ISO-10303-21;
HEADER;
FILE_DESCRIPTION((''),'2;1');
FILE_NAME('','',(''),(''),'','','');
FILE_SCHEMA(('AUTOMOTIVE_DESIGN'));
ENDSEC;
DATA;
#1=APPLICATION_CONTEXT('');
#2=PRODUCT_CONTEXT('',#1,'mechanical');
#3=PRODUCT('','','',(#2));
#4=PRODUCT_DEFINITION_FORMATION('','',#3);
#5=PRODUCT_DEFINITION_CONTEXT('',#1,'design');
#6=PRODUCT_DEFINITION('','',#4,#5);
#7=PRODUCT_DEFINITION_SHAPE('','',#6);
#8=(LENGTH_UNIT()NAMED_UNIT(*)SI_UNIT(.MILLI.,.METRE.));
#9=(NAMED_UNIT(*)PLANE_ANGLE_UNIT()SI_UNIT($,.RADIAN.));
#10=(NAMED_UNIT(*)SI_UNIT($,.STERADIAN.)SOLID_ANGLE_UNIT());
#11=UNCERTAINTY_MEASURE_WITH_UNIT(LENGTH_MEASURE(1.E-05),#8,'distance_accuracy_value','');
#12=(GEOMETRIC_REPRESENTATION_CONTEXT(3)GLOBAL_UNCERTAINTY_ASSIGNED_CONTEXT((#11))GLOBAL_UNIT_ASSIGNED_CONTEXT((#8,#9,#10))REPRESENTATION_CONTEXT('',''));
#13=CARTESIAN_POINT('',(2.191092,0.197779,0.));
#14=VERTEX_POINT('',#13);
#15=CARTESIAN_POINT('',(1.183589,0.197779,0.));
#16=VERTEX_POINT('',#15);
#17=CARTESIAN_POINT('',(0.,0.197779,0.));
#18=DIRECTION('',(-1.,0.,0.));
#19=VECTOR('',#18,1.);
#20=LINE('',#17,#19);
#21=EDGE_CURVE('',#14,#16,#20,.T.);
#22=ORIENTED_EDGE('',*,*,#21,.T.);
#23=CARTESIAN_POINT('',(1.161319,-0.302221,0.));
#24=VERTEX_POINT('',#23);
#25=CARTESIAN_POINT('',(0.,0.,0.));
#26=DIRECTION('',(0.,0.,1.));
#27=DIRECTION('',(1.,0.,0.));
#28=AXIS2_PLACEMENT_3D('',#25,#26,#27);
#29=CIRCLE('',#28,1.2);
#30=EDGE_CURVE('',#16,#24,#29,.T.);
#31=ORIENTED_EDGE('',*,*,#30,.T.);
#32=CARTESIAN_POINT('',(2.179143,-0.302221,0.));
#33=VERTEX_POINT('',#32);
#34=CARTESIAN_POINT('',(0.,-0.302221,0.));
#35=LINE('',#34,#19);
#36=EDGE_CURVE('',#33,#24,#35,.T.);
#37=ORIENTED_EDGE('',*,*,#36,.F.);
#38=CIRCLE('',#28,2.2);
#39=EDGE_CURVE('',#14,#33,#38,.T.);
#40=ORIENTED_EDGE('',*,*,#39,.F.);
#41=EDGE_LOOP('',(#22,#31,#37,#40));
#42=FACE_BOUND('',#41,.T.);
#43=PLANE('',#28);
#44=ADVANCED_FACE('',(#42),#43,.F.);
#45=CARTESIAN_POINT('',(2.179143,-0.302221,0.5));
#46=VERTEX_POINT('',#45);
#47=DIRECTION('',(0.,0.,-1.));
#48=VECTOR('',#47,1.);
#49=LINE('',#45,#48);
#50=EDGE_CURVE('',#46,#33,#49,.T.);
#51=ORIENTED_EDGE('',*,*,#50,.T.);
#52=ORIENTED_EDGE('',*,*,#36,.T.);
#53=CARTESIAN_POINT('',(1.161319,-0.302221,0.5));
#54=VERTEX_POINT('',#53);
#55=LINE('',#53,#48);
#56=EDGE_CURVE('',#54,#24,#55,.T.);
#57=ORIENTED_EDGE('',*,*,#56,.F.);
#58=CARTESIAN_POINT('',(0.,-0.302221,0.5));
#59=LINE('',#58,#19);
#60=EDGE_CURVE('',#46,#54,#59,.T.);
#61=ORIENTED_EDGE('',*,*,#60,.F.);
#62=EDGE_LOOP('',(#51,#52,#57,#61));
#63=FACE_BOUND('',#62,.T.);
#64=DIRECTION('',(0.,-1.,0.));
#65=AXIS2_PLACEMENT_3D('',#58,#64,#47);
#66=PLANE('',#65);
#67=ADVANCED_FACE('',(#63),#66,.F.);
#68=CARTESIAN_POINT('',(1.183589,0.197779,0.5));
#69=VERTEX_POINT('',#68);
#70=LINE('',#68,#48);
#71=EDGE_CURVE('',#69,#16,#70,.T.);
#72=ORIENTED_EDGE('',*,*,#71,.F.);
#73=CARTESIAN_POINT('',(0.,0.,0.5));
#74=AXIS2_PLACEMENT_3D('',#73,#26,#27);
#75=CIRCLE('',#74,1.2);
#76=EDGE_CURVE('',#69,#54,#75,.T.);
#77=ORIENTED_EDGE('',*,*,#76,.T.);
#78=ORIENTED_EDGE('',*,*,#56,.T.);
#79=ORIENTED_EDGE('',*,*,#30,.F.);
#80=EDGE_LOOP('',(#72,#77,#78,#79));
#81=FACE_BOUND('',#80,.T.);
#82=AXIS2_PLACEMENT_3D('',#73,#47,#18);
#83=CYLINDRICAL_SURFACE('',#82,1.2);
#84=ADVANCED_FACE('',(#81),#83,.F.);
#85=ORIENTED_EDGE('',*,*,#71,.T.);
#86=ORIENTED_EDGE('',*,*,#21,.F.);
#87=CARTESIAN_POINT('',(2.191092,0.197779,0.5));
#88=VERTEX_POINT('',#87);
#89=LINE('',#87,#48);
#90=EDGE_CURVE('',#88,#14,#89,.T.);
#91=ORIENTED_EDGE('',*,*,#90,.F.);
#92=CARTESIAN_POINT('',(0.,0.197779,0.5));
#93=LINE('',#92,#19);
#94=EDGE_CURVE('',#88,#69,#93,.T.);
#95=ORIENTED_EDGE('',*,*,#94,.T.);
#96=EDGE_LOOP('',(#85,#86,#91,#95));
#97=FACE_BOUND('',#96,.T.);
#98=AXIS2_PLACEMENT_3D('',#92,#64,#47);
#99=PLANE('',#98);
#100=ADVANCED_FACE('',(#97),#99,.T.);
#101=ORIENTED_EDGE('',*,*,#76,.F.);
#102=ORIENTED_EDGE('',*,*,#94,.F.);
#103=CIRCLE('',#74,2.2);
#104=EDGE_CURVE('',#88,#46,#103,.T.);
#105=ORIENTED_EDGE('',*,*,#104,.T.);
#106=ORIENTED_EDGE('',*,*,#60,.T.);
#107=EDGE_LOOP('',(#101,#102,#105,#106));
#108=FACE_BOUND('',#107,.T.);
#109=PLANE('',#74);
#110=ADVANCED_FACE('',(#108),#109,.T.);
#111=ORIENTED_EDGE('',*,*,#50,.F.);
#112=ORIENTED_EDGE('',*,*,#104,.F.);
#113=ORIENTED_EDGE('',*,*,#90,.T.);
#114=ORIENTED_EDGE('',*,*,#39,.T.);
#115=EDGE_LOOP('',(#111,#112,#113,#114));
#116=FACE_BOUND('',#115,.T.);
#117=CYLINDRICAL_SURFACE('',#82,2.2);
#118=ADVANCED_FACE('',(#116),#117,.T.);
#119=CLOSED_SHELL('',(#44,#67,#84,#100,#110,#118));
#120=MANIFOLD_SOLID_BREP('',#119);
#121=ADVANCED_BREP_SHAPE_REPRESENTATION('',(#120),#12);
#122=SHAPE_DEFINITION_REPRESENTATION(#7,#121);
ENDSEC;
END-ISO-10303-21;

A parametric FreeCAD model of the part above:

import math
import FreeCAD as App
import Part
import Sketcher

V = App.Vector
Q = App.Units.Quantity

doc = App.newDocument("Part")
body = doc.addObject("PartDesign::Body", "Body")

# Sketch on XY plane
sketch1 = body.newObject("Sketcher::SketchObject", "Sketch")
sketch1.AttachmentSupport = (doc.getObject("XY_Plane"), [""])
sketch1.MapMode = "FlatFace"
sketch1.addGeometry([
    Part.ArcOfCircle(Part.Circle(V(0, 0, 0), V(0, 0, 1), 2.2), math.radians(5), math.radians(352)),
    Part.LineSegment(V(2.2, -0.3, 0), V(1.2, -0.3, 0)),
    Part.ArcOfCircle(Part.Circle(V(0, 0, 0), V(0, 0, 1), 1.2), math.radians(9), math.radians(345)),
    Part.LineSegment(V(1.2, 0.2, 0), V(2.2, 0.2, 0)),
], False)
sketch1.addConstraint([
    Sketcher.Constraint("Coincident", 0, 2, 1, 1),
    Sketcher.Constraint("Coincident", 1, 2, 2, 2),
    Sketcher.Constraint("Coincident", 2, 1, 3, 1),
    Sketcher.Constraint("Coincident", 3, 2, 0, 1),
    Sketcher.Constraint("Horizontal", 1),
    Sketcher.Constraint("Horizontal", 3),
    Sketcher.Constraint("Coincident", 0, 3, -1, 1),
    Sketcher.Constraint("Coincident", 2, 3, -1, 1),
    Sketcher.Constraint("Radius", 0, Q("2.2 mm")),
    Sketcher.Constraint("Radius", 2, Q("1.2 mm")),
    Sketcher.Constraint("DistanceY", 1, 2, 2, 1, Q("0.5 mm")),
    Sketcher.Constraint("DistanceX", 1, 2, 1, 1, Q("1.017823 mm")),
])
pad1 = body.newObject("PartDesign::Pad", "Pad")
pad1.Profile = sketch1
pad1.Length = 0.5

doc.recompute()
